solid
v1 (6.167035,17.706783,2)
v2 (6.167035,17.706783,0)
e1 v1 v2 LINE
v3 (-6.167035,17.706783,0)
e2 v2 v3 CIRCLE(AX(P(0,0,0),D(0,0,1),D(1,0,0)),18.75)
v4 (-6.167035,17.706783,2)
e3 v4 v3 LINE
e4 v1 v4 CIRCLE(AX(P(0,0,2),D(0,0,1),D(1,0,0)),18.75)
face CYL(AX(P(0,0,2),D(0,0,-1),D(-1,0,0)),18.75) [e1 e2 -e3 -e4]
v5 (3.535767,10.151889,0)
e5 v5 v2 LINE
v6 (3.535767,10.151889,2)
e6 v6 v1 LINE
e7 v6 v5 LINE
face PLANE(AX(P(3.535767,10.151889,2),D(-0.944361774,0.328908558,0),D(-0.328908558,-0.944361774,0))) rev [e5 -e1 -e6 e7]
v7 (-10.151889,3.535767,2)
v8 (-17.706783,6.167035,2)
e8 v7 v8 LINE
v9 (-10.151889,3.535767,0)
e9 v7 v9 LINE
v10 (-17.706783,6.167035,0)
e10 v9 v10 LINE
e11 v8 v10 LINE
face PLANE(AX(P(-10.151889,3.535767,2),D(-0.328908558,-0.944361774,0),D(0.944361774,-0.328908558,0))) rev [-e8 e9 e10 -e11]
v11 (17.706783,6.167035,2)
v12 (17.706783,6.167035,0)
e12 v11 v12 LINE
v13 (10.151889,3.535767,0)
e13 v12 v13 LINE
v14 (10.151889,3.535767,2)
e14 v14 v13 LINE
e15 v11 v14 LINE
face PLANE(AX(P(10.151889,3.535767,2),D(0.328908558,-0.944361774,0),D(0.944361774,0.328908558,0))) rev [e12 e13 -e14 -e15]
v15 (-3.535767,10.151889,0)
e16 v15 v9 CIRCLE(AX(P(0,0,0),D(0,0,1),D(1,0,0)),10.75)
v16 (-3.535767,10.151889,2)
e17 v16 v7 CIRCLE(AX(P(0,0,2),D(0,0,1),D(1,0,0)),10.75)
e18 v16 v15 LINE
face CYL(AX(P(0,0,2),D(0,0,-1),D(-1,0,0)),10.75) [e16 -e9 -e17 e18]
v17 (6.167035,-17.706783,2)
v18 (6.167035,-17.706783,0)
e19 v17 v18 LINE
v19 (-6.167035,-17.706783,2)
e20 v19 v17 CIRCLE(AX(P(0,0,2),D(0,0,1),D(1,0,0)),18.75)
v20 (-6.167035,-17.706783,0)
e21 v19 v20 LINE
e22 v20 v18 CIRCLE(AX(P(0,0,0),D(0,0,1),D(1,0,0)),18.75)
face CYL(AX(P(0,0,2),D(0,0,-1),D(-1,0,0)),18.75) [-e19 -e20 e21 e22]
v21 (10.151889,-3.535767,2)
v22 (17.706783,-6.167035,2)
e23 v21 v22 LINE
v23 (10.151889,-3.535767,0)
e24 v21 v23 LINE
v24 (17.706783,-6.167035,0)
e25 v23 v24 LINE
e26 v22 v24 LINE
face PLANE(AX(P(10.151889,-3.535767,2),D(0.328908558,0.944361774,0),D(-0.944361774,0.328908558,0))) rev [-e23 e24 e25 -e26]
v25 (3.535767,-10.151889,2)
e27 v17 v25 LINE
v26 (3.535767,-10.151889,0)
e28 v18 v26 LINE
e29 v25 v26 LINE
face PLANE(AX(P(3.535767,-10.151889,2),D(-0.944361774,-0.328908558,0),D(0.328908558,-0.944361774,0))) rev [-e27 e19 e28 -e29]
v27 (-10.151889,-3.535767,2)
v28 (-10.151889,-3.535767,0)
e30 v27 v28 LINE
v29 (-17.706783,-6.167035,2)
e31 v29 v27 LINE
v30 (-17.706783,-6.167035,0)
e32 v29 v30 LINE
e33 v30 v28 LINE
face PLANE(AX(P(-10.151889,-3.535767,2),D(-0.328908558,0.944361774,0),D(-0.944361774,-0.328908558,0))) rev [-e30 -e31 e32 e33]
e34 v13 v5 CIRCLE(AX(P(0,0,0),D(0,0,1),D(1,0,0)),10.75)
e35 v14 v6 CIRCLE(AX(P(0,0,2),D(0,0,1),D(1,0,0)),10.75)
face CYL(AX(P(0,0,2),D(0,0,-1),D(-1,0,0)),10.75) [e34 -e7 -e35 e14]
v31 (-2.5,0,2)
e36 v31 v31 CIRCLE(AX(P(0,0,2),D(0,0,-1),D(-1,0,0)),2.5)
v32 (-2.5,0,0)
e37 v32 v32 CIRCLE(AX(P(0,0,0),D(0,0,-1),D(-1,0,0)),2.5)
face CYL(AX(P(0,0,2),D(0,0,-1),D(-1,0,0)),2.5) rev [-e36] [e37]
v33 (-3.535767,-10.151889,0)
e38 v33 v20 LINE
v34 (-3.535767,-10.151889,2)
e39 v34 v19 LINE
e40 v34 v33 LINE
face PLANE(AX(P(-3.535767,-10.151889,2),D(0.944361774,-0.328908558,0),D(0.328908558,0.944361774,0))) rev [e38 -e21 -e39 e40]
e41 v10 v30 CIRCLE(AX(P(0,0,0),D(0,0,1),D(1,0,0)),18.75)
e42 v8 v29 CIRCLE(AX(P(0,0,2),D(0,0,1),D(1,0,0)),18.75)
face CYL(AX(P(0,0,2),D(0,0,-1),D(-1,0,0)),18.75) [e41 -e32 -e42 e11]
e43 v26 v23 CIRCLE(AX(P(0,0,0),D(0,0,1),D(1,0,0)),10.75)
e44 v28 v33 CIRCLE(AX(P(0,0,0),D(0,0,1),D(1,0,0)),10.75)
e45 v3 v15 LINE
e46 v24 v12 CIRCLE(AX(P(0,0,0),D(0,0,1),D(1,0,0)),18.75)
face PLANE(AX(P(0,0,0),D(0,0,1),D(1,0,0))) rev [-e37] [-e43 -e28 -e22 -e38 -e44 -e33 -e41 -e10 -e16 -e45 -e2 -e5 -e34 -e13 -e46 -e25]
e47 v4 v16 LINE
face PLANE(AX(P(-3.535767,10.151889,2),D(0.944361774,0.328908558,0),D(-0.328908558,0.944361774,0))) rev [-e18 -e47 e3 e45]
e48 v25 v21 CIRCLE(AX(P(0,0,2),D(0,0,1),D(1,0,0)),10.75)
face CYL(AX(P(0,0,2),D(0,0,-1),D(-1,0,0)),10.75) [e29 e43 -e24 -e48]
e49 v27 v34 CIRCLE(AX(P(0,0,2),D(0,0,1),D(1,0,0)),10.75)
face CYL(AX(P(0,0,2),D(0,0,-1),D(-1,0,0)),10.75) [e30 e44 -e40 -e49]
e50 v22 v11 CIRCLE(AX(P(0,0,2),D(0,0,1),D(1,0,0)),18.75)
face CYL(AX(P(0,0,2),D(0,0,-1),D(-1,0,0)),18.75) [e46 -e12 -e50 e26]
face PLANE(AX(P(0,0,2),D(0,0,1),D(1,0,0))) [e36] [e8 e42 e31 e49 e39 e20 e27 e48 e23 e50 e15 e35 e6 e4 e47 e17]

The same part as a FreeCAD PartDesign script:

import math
import FreeCAD as App
import Part
import Sketcher
Q = App.Units.Quantity

doc = App.newDocument("Part")
body = doc.addObject("PartDesign::Body", "Body")

sketch1 = body.newObject("Sketcher::SketchObject", "Sketch")
sketch1.AttachmentSupport = (doc.getObject("XY_Plane"), [""])
sketch1.MapMode = "FlatFace"
sketch1.addGeometry([
    Part.LineSegment(App.Vector(4, 10, 0), App.Vector(6, 18, 0)),
    Part.ArcOfCircle(Part.Circle(App.Vector(0, 0, 0), App.Vector(0, 0, 1), 19), math.radians(71), math.radians(109)),
    Part.LineSegment(App.Vector(-6, 18, 0), App.Vector(-4, 10, 0)),
    Part.ArcOfCircle(Part.Circle(App.Vector(0, 0, 0), App.Vector(0, 0, 1), 11), math.radians(109), math.radians(161)),
    Part.LineSegment(App.Vector(-10, 4, 0), App.Vector(-18, 6, 0)),
    Part.ArcOfCircle(Part.Circle(App.Vector(0, 0, 0), App.Vector(0, 0, 1), 19), math.radians(161), math.radians(199)),
    Part.LineSegment(App.Vector(-18, -6, 0), App.Vector(-10, -4, 0)),
    Part.ArcOfCircle(Part.Circle(App.Vector(0, 0, 0), App.Vector(0, 0, 1), 11), math.radians(-161), math.radians(-109)),
    Part.LineSegment(App.Vector(-4, -10, 0), App.Vector(-6, -18, 0)),
    Part.ArcOfCircle(Part.Circle(App.Vector(0, 0, 0), App.Vector(0, 0, 1), 19), math.radians(-109), math.radians(-71)),
    Part.LineSegment(App.Vector(6, -18, 0), App.Vector(4, -10, 0)),
    Part.ArcOfCircle(Part.Circle(App.Vector(0, 0, 0), App.Vector(0, 0, 1), 11), math.radians(-71), math.radians(-19)),
    Part.LineSegment(App.Vector(10, -4, 0), App.Vector(18, -6, 0)),
    Part.ArcOfCircle(Part.Circle(App.Vector(0, 0, 0), App.Vector(0, 0, 1), 19), math.radians(-19), math.radians(19)),
    Part.LineSegment(App.Vector(18, 6, 0), App.Vector(10, 4, 0)),
    Part.ArcOfCircle(Part.Circle(App.Vector(0, 0, 0), App.Vector(0, 0, 1), 11), math.radians(19), math.radians(71)),
], False)
sketch1.addConstraint([
    Sketcher.Constraint("Coincident", 0, 2, 1, 1),
    Sketcher.Constraint("Coincident", 1, 2, 2, 1),
    Sketcher.Constraint("Coincident", 2, 2, 3, 1),
    Sketcher.Constraint("Coincident", 3, 2, 4, 1),
    Sketcher.Constraint("Coincident", 4, 2, 5, 1),
    Sketcher.Constraint("Coincident", 5, 2, 6, 1),
    Sketcher.Constraint("Coincident", 6, 2, 7, 1),
    Sketcher.Constraint("Coincident", 7, 2, 8, 1),
    Sketcher.Constraint("Coincident", 8, 2, 9, 1),
    Sketcher.Constraint("Coincident", 9, 2, 10, 1),
    Sketcher.Constraint("Coincident", 10, 2, 11, 1),
    Sketcher.Constraint("Coincident", 11, 2, 12, 1),
    Sketcher.Constraint("Coincident", 12, 2, 13, 1),
    Sketcher.Constraint("Coincident", 13, 2, 14, 1),
    Sketcher.Constraint("Coincident", 14, 2, 15, 1),
    Sketcher.Constraint("Coincident", 15, 2, 0, 1),
    Sketcher.Constraint("Coincident", 1, 3, -1, 1),
    Sketcher.Constraint("Coincident", 3, 3, -1, 1),
    Sketcher.Constraint("Coincident", 5, 3, -1, 1),
    Sketcher.Constraint("Coincident", 7, 3, -1, 1),
    Sketcher.Constraint("Coincident", 9, 3, -1, 1),
    Sketcher.Constraint("Coincident", 11, 3, -1, 1),
    Sketcher.Constraint("Coincident", 13, 3, -1, 1),
    Sketcher.Constraint("Coincident", 15, 3, -1, 1),
    Sketcher.Constraint("Equal", 1, 5),
    Sketcher.Constraint("Equal", 3, 7),
    Sketcher.Constraint("Equal", 5, 9),
    Sketcher.Constraint("Equal", 7, 11),
    Sketcher.Constraint("Equal", 9, 13),
    Sketcher.Constraint("Equal", 11, 15),
    Sketcher.Constraint("Perpendicular", 0, 4),
    Sketcher.Constraint("Perpendicular", 2, 6),
    Sketcher.Constraint("Perpendicular", 4, 8),
    Sketcher.Constraint("Perpendicular", 6, 10),
    Sketcher.Constraint("Perpendicular", 8, 12),
    Sketcher.Constraint("Perpendicular", 10, 14),
    Sketcher.Constraint("Horizontal", 0, 2, 1, 2),
    Sketcher.Constraint("Horizontal", 8, 2, 9, 2),
    Sketcher.Constraint("Horizontal", 7, 2, 10, 2),
    Sketcher.Constraint("Horizontal", 6, 2, 11, 2),
    Sketcher.Constraint("Horizontal", 4, 2, 13, 2),
    Sketcher.Constraint("Vertical", 4, 2, 5, 2),
    Sketcher.Constraint("Vertical", 2, 2, 7, 2),
    Sketcher.Constraint("Radius", 1, Q("18.75 mm")),
    Sketcher.Constraint("Radius", 3, Q("10.75 mm")),
    Sketcher.Constraint("DistanceY", -1, 1, 2, 2, Q("10.151889 mm")),
    Sketcher.Constraint("DistanceX", 3, 2, -1, 1, Q("10.151889 mm")),
    Sketcher.Constraint("DistanceX", 1, 2, 0, 2, Q("12.334071 mm")),
])
pad1 = body.newObject("PartDesign::Pad", "Pad")
pad1.Profile = sketch1
pad1.Length = 2

sketch2 = body.newObject("Sketcher::SketchObject", "Sketch001")
sketch2.AttachmentSupport = (doc.getObject("XY_Plane"), [""])
sketch2.MapMode = "FlatFace"
sketch2.addGeometry(Part.Circle(App.Vector(0, 0, 0), App.Vector(0, 0, 1), 2.5), False)
sketch2.addConstraint([
    Sketcher.Constraint("Coincident", 0, 3, -1, 1),
    Sketcher.Constraint("Diameter", 0, Q("5 mm")),
])
pocket1 = body.newObject("PartDesign::Pocket", "Pocket")
pocket1.Profile = sketch2
pocket1.Type = "ThroughAll"
pocket1.Reversed = True

doc.recompute()
